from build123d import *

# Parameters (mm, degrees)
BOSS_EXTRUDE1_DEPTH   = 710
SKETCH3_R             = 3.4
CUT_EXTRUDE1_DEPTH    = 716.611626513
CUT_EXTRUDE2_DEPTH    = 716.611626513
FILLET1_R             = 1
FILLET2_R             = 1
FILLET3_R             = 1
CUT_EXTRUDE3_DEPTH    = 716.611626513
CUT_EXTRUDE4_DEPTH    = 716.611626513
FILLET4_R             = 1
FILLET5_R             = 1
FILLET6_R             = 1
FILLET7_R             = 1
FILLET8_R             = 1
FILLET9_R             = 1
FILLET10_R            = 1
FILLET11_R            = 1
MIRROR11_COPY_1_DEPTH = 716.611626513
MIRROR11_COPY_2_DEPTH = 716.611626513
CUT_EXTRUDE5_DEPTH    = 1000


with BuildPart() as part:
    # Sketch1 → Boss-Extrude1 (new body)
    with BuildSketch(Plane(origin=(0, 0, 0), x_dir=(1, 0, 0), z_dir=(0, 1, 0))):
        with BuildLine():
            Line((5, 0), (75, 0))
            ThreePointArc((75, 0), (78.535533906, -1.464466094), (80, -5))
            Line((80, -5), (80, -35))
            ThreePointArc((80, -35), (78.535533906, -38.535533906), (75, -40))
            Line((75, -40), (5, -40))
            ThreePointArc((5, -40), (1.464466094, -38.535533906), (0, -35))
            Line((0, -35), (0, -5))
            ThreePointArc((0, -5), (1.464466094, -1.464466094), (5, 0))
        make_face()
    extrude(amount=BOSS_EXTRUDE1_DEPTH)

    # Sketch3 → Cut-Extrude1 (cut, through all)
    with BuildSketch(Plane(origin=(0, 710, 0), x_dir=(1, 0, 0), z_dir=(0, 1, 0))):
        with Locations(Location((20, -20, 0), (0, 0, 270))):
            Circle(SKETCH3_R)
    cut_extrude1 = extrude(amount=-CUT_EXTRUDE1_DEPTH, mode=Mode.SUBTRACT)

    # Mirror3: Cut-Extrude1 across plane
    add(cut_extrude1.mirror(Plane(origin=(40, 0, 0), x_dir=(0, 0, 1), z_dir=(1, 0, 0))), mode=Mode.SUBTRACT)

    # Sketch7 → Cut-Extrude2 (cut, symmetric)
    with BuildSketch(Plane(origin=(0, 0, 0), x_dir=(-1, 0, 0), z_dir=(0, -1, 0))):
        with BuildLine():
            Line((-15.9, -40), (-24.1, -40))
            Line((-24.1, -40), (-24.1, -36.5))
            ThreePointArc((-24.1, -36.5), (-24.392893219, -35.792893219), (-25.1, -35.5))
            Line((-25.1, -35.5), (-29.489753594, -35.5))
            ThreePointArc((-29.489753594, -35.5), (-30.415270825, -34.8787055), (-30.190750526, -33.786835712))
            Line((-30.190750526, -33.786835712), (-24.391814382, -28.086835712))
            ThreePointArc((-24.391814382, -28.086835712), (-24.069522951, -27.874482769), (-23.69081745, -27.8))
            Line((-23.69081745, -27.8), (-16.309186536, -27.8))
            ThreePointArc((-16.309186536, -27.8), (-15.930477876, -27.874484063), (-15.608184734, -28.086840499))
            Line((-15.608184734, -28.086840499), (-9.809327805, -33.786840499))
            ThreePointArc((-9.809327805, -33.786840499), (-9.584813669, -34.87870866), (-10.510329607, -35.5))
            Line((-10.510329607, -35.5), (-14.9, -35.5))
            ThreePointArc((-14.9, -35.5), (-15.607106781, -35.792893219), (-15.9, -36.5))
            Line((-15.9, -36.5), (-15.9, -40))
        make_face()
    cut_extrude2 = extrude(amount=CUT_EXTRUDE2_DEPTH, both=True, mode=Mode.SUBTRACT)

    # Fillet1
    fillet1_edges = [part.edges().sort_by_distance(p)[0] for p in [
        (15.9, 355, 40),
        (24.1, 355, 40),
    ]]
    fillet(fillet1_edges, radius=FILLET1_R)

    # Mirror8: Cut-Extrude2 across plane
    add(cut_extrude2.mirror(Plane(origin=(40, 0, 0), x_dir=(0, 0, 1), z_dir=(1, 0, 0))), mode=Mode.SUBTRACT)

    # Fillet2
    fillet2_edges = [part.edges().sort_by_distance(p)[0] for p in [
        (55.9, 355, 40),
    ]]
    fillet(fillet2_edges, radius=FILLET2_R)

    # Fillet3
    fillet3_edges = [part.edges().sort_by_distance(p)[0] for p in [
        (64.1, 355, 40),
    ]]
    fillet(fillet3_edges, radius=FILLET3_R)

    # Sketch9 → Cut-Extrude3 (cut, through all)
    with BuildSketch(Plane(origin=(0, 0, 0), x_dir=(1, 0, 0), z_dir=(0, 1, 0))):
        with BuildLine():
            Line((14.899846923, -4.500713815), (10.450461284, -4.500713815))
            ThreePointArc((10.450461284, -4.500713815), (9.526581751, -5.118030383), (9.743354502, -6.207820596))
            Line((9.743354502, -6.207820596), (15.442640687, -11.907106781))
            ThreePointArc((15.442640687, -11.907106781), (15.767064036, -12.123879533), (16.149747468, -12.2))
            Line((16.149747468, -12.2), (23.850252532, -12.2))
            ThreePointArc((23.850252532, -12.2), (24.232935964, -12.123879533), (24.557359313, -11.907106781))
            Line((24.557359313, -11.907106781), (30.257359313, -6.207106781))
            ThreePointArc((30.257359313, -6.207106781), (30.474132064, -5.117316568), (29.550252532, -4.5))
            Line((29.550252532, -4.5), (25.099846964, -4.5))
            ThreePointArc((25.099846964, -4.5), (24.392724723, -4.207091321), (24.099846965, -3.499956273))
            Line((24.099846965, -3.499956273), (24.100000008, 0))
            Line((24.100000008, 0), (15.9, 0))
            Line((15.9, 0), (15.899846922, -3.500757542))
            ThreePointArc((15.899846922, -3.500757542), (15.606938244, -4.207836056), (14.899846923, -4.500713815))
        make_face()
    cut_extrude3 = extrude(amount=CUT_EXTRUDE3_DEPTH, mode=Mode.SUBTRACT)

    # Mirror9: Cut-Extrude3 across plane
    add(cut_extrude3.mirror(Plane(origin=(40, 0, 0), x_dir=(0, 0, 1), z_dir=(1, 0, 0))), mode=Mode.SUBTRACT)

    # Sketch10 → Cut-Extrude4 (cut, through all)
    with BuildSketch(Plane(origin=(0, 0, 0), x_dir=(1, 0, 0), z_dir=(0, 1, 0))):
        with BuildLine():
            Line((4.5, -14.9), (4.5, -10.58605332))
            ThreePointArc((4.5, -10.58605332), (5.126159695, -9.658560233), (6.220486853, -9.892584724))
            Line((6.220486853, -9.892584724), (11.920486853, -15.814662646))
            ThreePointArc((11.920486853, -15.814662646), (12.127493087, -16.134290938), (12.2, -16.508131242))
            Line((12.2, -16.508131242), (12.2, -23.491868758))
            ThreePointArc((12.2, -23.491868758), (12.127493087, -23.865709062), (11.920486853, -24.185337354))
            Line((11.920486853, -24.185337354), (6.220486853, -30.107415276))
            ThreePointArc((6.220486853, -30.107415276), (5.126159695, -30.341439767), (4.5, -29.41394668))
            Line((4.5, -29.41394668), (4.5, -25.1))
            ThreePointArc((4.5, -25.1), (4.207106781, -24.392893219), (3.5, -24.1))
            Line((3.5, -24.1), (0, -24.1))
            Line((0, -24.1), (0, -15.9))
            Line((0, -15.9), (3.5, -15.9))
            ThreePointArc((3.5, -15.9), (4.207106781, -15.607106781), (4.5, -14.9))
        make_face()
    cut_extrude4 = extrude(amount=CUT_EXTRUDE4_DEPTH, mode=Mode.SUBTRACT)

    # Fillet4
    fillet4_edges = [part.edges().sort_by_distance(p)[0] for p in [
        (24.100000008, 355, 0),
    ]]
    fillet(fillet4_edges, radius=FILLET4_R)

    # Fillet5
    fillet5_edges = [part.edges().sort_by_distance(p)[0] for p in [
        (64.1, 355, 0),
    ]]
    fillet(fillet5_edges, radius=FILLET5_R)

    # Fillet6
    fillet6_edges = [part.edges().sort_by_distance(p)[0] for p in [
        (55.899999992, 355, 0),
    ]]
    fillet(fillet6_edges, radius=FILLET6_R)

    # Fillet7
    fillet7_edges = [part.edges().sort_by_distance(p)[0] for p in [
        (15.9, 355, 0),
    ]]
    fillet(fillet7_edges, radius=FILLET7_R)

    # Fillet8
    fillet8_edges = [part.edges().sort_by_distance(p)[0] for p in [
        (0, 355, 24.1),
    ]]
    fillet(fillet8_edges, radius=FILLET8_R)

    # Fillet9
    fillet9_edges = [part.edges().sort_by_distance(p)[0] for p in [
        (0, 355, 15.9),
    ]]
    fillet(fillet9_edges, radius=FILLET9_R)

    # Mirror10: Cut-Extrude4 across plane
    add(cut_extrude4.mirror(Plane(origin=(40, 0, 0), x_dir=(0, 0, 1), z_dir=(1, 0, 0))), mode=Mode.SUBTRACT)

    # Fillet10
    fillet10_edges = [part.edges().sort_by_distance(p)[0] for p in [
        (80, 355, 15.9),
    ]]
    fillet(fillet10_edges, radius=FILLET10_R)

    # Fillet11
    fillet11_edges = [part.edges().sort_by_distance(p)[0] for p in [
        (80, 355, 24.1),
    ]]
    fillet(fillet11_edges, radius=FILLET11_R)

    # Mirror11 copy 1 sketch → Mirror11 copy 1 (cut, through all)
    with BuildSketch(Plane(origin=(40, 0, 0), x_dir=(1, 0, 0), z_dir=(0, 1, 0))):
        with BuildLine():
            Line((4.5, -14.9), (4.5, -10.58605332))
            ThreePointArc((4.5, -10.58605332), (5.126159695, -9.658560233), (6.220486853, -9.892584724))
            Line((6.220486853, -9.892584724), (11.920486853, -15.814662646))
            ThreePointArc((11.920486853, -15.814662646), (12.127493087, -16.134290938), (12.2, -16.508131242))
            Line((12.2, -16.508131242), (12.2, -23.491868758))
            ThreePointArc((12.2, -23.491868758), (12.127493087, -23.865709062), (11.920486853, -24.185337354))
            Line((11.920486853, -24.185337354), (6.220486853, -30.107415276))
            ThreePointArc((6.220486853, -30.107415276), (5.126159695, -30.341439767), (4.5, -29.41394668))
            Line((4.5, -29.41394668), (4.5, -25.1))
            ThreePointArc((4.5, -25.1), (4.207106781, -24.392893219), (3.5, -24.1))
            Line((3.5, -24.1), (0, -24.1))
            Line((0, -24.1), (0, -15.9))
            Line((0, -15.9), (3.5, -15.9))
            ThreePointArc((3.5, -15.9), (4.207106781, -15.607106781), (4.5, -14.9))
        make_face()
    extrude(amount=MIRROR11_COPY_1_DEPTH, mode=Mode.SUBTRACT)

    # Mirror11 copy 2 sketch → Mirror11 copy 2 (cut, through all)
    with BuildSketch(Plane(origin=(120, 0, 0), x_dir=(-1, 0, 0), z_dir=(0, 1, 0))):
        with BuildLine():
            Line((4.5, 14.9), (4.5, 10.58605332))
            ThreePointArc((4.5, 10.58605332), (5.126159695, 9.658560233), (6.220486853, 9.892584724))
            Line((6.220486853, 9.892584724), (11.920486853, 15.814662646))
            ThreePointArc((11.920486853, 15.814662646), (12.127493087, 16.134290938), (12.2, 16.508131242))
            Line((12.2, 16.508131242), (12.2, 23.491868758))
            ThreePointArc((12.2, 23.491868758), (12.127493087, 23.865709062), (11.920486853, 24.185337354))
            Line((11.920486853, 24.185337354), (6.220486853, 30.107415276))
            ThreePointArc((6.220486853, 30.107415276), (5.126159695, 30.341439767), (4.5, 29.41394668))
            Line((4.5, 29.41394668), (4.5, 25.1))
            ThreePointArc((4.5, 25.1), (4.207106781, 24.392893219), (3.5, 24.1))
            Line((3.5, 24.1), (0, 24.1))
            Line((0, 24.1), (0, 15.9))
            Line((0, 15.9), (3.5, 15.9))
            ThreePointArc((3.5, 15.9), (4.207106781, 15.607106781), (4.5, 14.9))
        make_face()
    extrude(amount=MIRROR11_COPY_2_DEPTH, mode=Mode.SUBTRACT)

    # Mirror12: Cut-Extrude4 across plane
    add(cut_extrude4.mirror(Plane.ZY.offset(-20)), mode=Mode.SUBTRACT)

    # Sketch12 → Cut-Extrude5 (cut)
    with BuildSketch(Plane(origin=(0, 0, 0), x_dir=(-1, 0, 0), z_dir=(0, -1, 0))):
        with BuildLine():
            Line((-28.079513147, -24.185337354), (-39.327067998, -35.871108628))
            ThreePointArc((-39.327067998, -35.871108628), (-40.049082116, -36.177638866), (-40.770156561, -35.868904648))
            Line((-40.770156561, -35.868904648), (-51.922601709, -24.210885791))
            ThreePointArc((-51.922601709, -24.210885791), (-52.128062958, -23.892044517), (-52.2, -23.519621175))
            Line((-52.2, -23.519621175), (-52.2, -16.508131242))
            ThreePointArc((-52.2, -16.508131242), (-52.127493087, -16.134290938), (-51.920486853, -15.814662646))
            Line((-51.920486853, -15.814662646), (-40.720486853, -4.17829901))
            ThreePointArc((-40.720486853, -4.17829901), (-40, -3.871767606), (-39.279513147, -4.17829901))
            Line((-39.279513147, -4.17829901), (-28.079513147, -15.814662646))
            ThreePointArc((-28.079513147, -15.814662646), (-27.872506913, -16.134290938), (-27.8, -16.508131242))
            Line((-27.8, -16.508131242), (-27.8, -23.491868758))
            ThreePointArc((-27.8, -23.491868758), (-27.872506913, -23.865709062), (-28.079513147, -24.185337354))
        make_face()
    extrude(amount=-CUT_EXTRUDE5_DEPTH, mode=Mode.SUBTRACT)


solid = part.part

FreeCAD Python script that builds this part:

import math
import FreeCAD as App
import Part
import Sketcher
from FreeCAD import Vector


def edges_at(feature, points):
    """Names of the edges that pass closest to the given points."""
    edges = feature.Shape.Edges
    near = lambda p: min(range(len(edges)), key=lambda i: edges[i].distToShape(Part.Vertex(*p))[0])
    return sorted({f"Edge{near(p) + 1}" for p in points})

doc = App.newDocument("Part")
body = doc.addObject("PartDesign::Body", "Body")

sketch1 = doc.addObject("Sketcher::SketchObject", "Sketch")
body.addObject(sketch1)
sketch1.AttachmentSupport = (doc.XZ_Plane, [""])
sketch1.MapMode = "FlatFace"
sketch1.addGeometry([
    Part.LineSegment(Vector(75, 0, 0), Vector(5, 0, 0)),
    Part.ArcOfCircle(Part.Circle(Vector(5, 5, 0), Vector(0, 0, 1), 5), math.radians(180), math.radians(270)),
    Part.LineSegment(Vector(0, 5, 0), Vector(0, 35, 0)),
    Part.ArcOfCircle(Part.Circle(Vector(5, 35, 0), Vector(0, 0, 1), 5), math.radians(90), math.radians(180)),
    Part.LineSegment(Vector(5, 40, 0), Vector(75, 40, 0)),
    Part.ArcOfCircle(Part.Circle(Vector(75, 35, 0), Vector(0, 0, 1), 5), math.radians(0), math.radians(90)),
    Part.LineSegment(Vector(80, 35, 0), Vector(80, 5, 0)),
    Part.ArcOfCircle(Part.Circle(Vector(75, 5, 0), Vector(0, 0, 1), 5), math.radians(-90), math.radians(0)),
], False)
sketch1.addConstraint([
    Sketcher.Constraint("Tangent", 0, 2, 1, 2),
    Sketcher.Constraint("Tangent", 1, 1, 2, 1),
    Sketcher.Constraint("Tangent", 2, 2, 3, 2),
    Sketcher.Constraint("Tangent", 3, 1, 4, 1),
    Sketcher.Constraint("Tangent", 4, 2, 5, 2),
    Sketcher.Constraint("Tangent", 5, 1, 6, 1),
    Sketcher.Constraint("Tangent", 6, 2, 7, 2),
    Sketcher.Constraint("Tangent", 7, 1, 0, 1),
    Sketcher.Constraint("Horizontal", 0),
    Sketcher.Constraint("Vertical", 2),
    Sketcher.Constraint("Horizontal", 4),
    Sketcher.Constraint("Vertical", 6),
    Sketcher.Constraint("Equal", 1, 3),
    Sketcher.Constraint("Equal", 3, 5),
    Sketcher.Constraint("Equal", 5, 7),
    Sketcher.Constraint("PointOnObject", 0, 2, -1),
    Sketcher.Constraint("PointOnObject", 1, 1, -2),
    Sketcher.Constraint("Radius", 1, 5.0),
    Sketcher.Constraint("DistanceX", 0, 2, 0, 1, 70.0),
    Sketcher.Constraint("DistanceY", 2, 1, 2, 2, 30.0),
])
pad1 = doc.addObject("PartDesign::Pad", "Pad")
body.addObject(pad1)
pad1.Profile = sketch1
pad1.Length = 710
pad1.Reversed = True

sketch2 = doc.addObject("Sketcher::SketchObject", "Sketch001")
body.addObject(sketch2)
sketch2.AttachmentSupport = (doc.XZ_Plane, [""])
sketch2.MapMode = "FlatFace"
sketch2.AttachmentOffset = App.Placement(Vector(0, 0, -710), App.Rotation())
sketch2.addGeometry(Part.Circle(Vector(20, 20, 0), Vector(0, 0, 1), 3.4), False)
sketch2.addConstraint([
    Sketcher.Constraint("Diameter", 0, 6.8),
    Sketcher.Constraint("DistanceX", -1, 1, 0, 3, 20.0),
    Sketcher.Constraint("DistanceY", -1, 1, 0, 3, 20.0),
])
pocket1 = doc.addObject("PartDesign::Pocket", "Pocket")
body.addObject(pocket1)
pocket1.Profile = sketch2
pocket1.Type = "ThroughAll"
pocket1.Reversed = True
doc.recompute()

datumplane = doc.addObject("PartDesign::Plane", "DatumPlane")
body.addObject(datumplane)
datumplane.AttachmentSupport = (doc.YZ_Plane, [""])
datumplane.MapMode = "FlatFace"
datumplane.AttachmentOffset = App.Placement(Vector(0, 0, 40), App.Rotation())
mirrored = doc.addObject("PartDesign::Mirrored", "Mirrored")
body.addObject(mirrored)
mirrored.Originals = [pocket1]
mirrored.MirrorPlane = (datumplane, [""])
body.Tip = mirrored

sketch3 = doc.addObject("Sketcher::SketchObject", "Sketch002")
body.addObject(sketch3)
sketch3.AttachmentSupport = (doc.XZ_Plane, [""])
sketch3.MapMode = "FlatFace"
sketch3.addGeometry([
    Part.LineSegment(Vector(24.1, 40, 0), Vector(15.9, 40, 0)),
    Part.LineSegment(Vector(15.9, 40, 0), Vector(15.9, 36.5, 0)),
    Part.ArcOfCircle(Part.Circle(Vector(14.9, 36.5, 0), Vector(0, 0, 1), 1), math.radians(-90), math.radians(0)),
    Part.LineSegment(Vector(14.9, 35.5, 0), Vector(10.5, 35.5, 0)),
    Part.ArcOfCircle(Part.Circle(Vector(10.5, 34.5, 0), Vector(0, 0, 1), 1), math.radians(90), math.radians(225)),
    Part.LineSegment(Vector(9.8, 33.8, 0), Vector(15.6, 28.1, 0)),
    Part.ArcOfCircle(Part.Circle(Vector(16.3, 28.8, 0), Vector(0, 0, 1), 1), math.radians(-135), math.radians(-90)),
    Part.LineSegment(Vector(16.3, 27.8, 0), Vector(23.7, 27.8, 0)),
    Part.ArcOfCircle(Part.Circle(Vector(23.7, 28.8, 0), Vector(0, 0, 1), 1), math.radians(-90), math.radians(-45)),
    Part.LineSegment(Vector(24.4, 28.1, 0), Vector(30.2, 33.8, 0)),
    Part.ArcOfCircle(Part.Circle(Vector(29.5, 34.5, 0), Vector(0, 0, 1), 1), math.radians(-45), math.radians(90)),
    Part.LineSegment(Vector(29.5, 35.5, 0), Vector(25.1, 35.5, 0)),
    Part.ArcOfCircle(Part.Circle(Vector(25.1, 36.5, 0), Vector(0, 0, 1), 1), math.radians(-180), math.radians(-90)),
    Part.LineSegment(Vector(24.1, 36.5, 0), Vector(24.1, 40, 0)),
], False)
sketch3.addConstraint([
    Sketcher.Constraint("Coincident", 0, 2, 1, 1),
    Sketcher.Constraint("Tangent", 1, 2, 2, 2),
    Sketcher.Constraint("Tangent", 2, 1, 3, 1),
    Sketcher.Constraint("Tangent", 3, 2, 4, 1),
    Sketcher.Constraint("Tangent", 4, 2, 5, 1),
    Sketcher.Constraint("Tangent", 5, 2, 6, 1),
    Sketcher.Constraint("Tangent", 6, 2, 7, 1),
    Sketcher.Constraint("Tangent", 7, 2, 8, 1),
    Sketcher.Constraint("Tangent", 8, 2, 9, 1),
    Sketcher.Constraint("Tangent", 9, 2, 10, 1),
    Sketcher.Constraint("Tangent", 10, 2, 11, 1),
    Sketcher.Constraint("Tangent", 11, 2, 12, 2),
    Sketcher.Constraint("Tangent", 12, 1, 13, 1),
    Sketcher.Constraint("Coincident", 13, 2, 0, 1),
    Sketcher.Constraint("Horizontal", 0),
    Sketcher.Constraint("Vertical", 1),
    Sketcher.Constraint("Horizontal", 3),
    Sketcher.Constraint("Horizontal", 7),
    Sketcher.Constraint("Horizontal", 11),
    Sketcher.Constraint("Vertical", 13),
    Sketcher.Constraint("Equal", 2, 4),
    Sketcher.Constraint("Equal", 4, 6),
    Sketcher.Constraint("Equal", 6, 8),
    Sketcher.Constraint("Equal", 8, 10),
    Sketcher.Constraint("Equal", 10, 12),
    Sketcher.Constraint("Horizontal", 4, 3, 10, 3),
    Sketcher.Constraint("Radius", 2, 1.0),
    Sketcher.Constraint("DistanceX", 0, 2, 0, 1, 8.2),
    Sketcher.Constraint("DistanceY", 1, 2, 1, 1, 3.5),
    Sketcher.Constraint("DistanceY", -1, 1, 0, 2, 40.0),
    Sketcher.Constraint("DistanceX", -1, 1, 2, 3, 14.9),
    Sketcher.Constraint("DistanceY", -1, 1, 6, 3, 28.8),
    Sketcher.Constraint("DistanceX", 4, 2, 4, 3, 0.701002),
    Sketcher.Constraint("DistanceX", 3, 2, 3, 1, 4.38967),
    Sketcher.Constraint("DistanceX", 7, 1, 7, 2, 7.381631),
    Sketcher.Constraint("DistanceX", 11, 2, 11, 1, 4.389754),
])
pocket2 = doc.addObject("PartDesign::Pocket", "Pocket001")
body.addObject(pocket2)
pocket2.Profile = sketch3
pocket2.Length = 1433.223253
pocket2.Midplane = True
doc.recompute()

fillet = doc.addObject("PartDesign::Fillet", "Fillet")
body.addObject(fillet)
fillet.Base = (pocket2, edges_at(pocket2, [(15.9, 355, 40), (24.1, 355, 40)]))
fillet.Radius = 1
doc.recompute()

datumplane2 = doc.addObject("PartDesign::Plane", "DatumPlane001")
body.addObject(datumplane2)
datumplane2.AttachmentSupport = (doc.YZ_Plane, [""])
datumplane2.MapMode = "FlatFace"
datumplane2.AttachmentOffset = App.Placement(Vector(0, 0, 40), App.Rotation())
mirrored2 = doc.addObject("PartDesign::Mirrored", "Mirrored001")
body.addObject(mirrored2)
mirrored2.Originals = [pocket2]
mirrored2.MirrorPlane = (datumplane2, [""])
body.Tip = mirrored2
doc.recompute()

fillet2 = doc.addObject("PartDesign::Fillet", "Fillet001")
body.addObject(fillet2)
fillet2.Base = (mirrored2, edges_at(mirrored2, [(55.9, 355, 40)]))
fillet2.Radius = 1
doc.recompute()

fillet3 = doc.addObject("PartDesign::Fillet", "Fillet002")
body.addObject(fillet3)
fillet3.Base = (fillet2, edges_at(fillet2, [(64.1, 355, 40)]))
fillet3.Radius = 1

sketch4 = doc.addObject("Sketcher::SketchObject", "Sketch003")
body.addObject(sketch4)
sketch4.AttachmentSupport = (doc.XZ_Plane, [""])
sketch4.MapMode = "FlatFace"
sketch4.addGeometry([
    Part.LineSegment(Vector(14.9, 4.5, 0), Vector(10.5, 4.5, 0)),
    Part.ArcOfCircle(Part.Circle(Vector(10.5, 5.5, 0), Vector(0, 0, 1), 1), math.radians(135), math.radians(270)),
    Part.LineSegment(Vector(9.7, 6.2, 0), Vector(15.4, 11.9, 0)),
    Part.ArcOfCircle(Part.Circle(Vector(16.1, 11.2, 0), Vector(0, 0, 1), 1), math.radians(90), math.radians(135)),
    Part.LineSegment(Vector(16.1, 12.2, 0), Vector(23.9, 12.2, 0)),
    Part.ArcOfCircle(Part.Circle(Vector(23.9, 11.2, 0), Vector(0, 0, 1), 1), math.radians(45), math.radians(90)),
    Part.LineSegment(Vector(24.6, 11.9, 0), Vector(30.3, 6.2, 0)),
    Part.ArcOfCircle(Part.Circle(Vector(29.6, 5.5, 0), Vector(0, 0, 1), 1), math.radians(-90), math.radians(45)),
    Part.LineSegment(Vector(29.6, 4.5, 0), Vector(25.1, 4.5, 0)),
    Part.ArcOfCircle(Part.Circle(Vector(25.1, 3.5, 0), Vector(0, 0, 1), 1), math.radians(90), math.radians(180)),
    Part.LineSegment(Vector(24.1, 3.5, 0), Vector(24.1, 0, 0)),
    Part.LineSegment(Vector(24.1, 0, 0), Vector(15.9, 0, 0)),
    Part.LineSegment(Vector(15.9, 0, 0), Vector(15.9, 3.5, 0)),
    Part.ArcOfCircle(Part.Circle(Vector(14.9, 3.5, 0), Vector(0, 0, 1), 1), math.radians(0), math.radians(90)),
], False)
sketch4.addConstraint([
    Sketcher.Constraint("Tangent", 0, 2, 1, 2),
    Sketcher.Constraint("Tangent", 1, 1, 2, 1),
    Sketcher.Constraint("Tangent", 2, 2, 3, 2),
    Sketcher.Constraint("Tangent", 3, 1, 4, 1),
    Sketcher.Constraint("Tangent", 4, 2, 5, 2),
    Sketcher.Constraint("Tangent", 5, 1, 6, 1),
    Sketcher.Constraint("Tangent", 6, 2, 7, 2),
    Sketcher.Constraint("Tangent", 7, 1, 8, 1),
    Sketcher.Constraint("Tangent", 8, 2, 9, 1),
    Sketcher.Constraint("Tangent", 9, 2, 10, 1),
    Sketcher.Constraint("Coincident", 10, 2, 11, 1),
    Sketcher.Constraint("Coincident", 11, 2, 12, 1),
    Sketcher.Constraint("Tangent", 12, 2, 13, 1),
    Sketcher.Constraint("Tangent", 13, 2, 0, 1),
    Sketcher.Constraint("Horizontal", 0),
    Sketcher.Constraint("Horizontal", 4),
    Sketcher.Constraint("Horizontal", 8),
    Sketcher.Constraint("Horizontal", 11),
    Sketcher.Constraint("Equal", 1, 3),
    Sketcher.Constraint("Equal", 3, 5),
    Sketcher.Constraint("Equal", 5, 7),
    Sketcher.Constraint("Equal", 7, 9),
    Sketcher.Constraint("Equal", 9, 13),
    Sketcher.Constraint("PointOnObject", 10, 2, -1),
    Sketcher.Constraint("Perpendicular", 2, 6),
    Sketcher.Constraint("Parallel", 10, 12),
    Sketcher.Constraint("Horizontal", 2, 2, 5, 1),
    Sketcher.Constraint("Radius", 1, 1.0),
    Sketcher.Constraint("DistanceX", 11, 2, 11, 1, 8.2),
    Sketcher.Constraint("DistanceY", -1, 1, 3, 3, 11.2),
    Sketcher.Constraint("DistanceY", -1, 1, 7, 3, 5.5),
    Sketcher.Constraint("DistanceX", -1, 1, 10, 2, 24.1),
    Sketcher.Constraint("DistanceX", 3, 3, 9, 3, 8.950099),
    Sketcher.Constraint("DistanceX", 1, 1, 5, 3, 14.106898),
    Sketcher.Constraint("DistanceX", 0, 2, 0, 1, 4.449386),
    Sketcher.Constraint("DistanceX", -1, 1, 1, 3, 10.450461),
])
pocket3 = doc.addObject("PartDesign::Pocket", "Pocket002")
body.addObject(pocket3)
pocket3.Profile = sketch4
pocket3.Type = "ThroughAll"
doc.recompute()

datumplane3 = doc.addObject("PartDesign::Plane", "DatumPlane002")
body.addObject(datumplane3)
datumplane3.AttachmentSupport = (doc.YZ_Plane, [""])
datumplane3.MapMode = "FlatFace"
datumplane3.AttachmentOffset = App.Placement(Vector(0, 0, 40), App.Rotation())
mirrored3 = doc.addObject("PartDesign::Mirrored", "Mirrored002")
body.addObject(mirrored3)
mirrored3.Originals = [pocket3]
mirrored3.MirrorPlane = (datumplane3, [""])
body.Tip = mirrored3

sketch5 = doc.addObject("Sketcher::SketchObject", "Sketch004")
body.addObject(sketch5)
sketch5.AttachmentSupport = (doc.XZ_Plane, [""])
sketch5.MapMode = "FlatFace"
sketch5.addGeometry([
    Part.LineSegment(Vector(4.5, 10.6, 0), Vector(4.5, 14.9, 0)),
    Part.ArcOfCircle(Part.Circle(Vector(3.5, 14.9, 0), Vector(0, 0, 1), 1), math.radians(0), math.radians(90)),
    Part.LineSegment(Vector(3.5, 15.9, 0), Vector(0, 15.9, 0)),
    Part.LineSegment(Vector(0, 15.9, 0), Vector(0, 24.1, 0)),
    Part.LineSegment(Vector(0, 24.1, 0), Vector(3.5, 24.1, 0)),
    Part.ArcOfCircle(Part.Circle(Vector(3.5, 25.1, 0), Vector(0, 0, 1), 1), math.radians(-90), math.radians(0)),
    Part.LineSegment(Vector(4.5, 25.1, 0), Vector(4.5, 29.4, 0)),
    Part.ArcOfCircle(Part.Circle(Vector(5.5, 29.4, 0), Vector(0, 0, 1), 1), math.radians(44), math.radians(180)),
    Part.LineSegment(Vector(6.2, 30.1, 0), Vector(11.9, 24.2, 0)),
    Part.ArcOfCircle(Part.Circle(Vector(11.2, 23.5, 0), Vector(0, 0, 1), 1), math.radians(0), math.radians(44)),
    Part.LineSegment(Vector(12.2, 23.5, 0), Vector(12.2, 16.5, 0)),
    Part.ArcOfCircle(Part.Circle(Vector(11.2, 16.5, 0), Vector(0, 0, 1), 1), math.radians(-44), math.radians(0)),
    Part.LineSegment(Vector(11.9, 15.8, 0), Vector(6.2, 9.9, 0)),
    Part.ArcOfCircle(Part.Circle(Vector(5.5, 10.6, 0), Vector(0, 0, 1), 1), math.radians(180), math.radians(316)),
], False)
sketch5.addConstraint([
    Sketcher.Constraint("Tangent", 0, 2, 1, 1),
    Sketcher.Constraint("Tangent", 1, 2, 2, 1),
    Sketcher.Constraint("Coincident", 2, 2, 3, 1),
    Sketcher.Constraint("Coincident", 3, 2, 4, 1),
    Sketcher.Constraint("Tangent", 4, 2, 5, 1),
    Sketcher.Constraint("Tangent", 5, 2, 6, 1),
    Sketcher.Constraint("Tangent", 6, 2, 7, 2),
    Sketcher.Constraint("Tangent", 7, 1, 8, 1),
    Sketcher.Constraint("Tangent", 8, 2, 9, 2),
    Sketcher.Constraint("Tangent", 9, 1, 10, 1),
    Sketcher.Constraint("Tangent", 10, 2, 11, 2),
    Sketcher.Constraint("Tangent", 11, 1, 12, 1),
    Sketcher.Constraint("Tangent", 12, 2, 13, 2),
    Sketcher.Constraint("Tangent", 13, 1, 0, 1),
    Sketcher.Constraint("Vertical", 0),
    Sketcher.Constraint("Horizontal", 2),
    Sketcher.Constraint("Vertical", 3),
    Sketcher.Constraint("Horizontal", 4),
    Sketcher.Constraint("Vertical", 6),
    Sketcher.Constraint("Vertical", 10),
    Sketcher.Constraint("Equal", 1, 5),
    Sketcher.Constraint("Equal", 5, 7),
    Sketcher.Constraint("Equal", 7, 9),
    Sketcher.Constraint("Equal", 9, 11),
    Sketcher.Constraint("Equal", 11, 13),
    Sketcher.Constraint("PointOnObject", 2, 2, -2),
    Sketcher.Constraint("Vertical", 1, 3, 5, 3),
    Sketcher.Constraint("Vertical", 8, 2, 11, 1),
    Sketcher.Constraint("Equal", 0, 6),
    Sketcher.Constraint("Radius", 1, 1.0),
    Sketcher.Constraint("DistanceX", 2, 2, 2, 1, 3.5),
    Sketcher.Constraint("DistanceY", 3, 1, 3, 2, 8.2),
    Sketcher.Constraint("DistanceY", -1, 1, 1, 3, 14.9),
    Sketcher.Constraint("DistanceX", -1, 1, 9, 3, 11.2),
    Sketcher.Constraint("Distance", 8, 8.21955),
    Sketcher.Constraint("DistanceY", 0, 1, 0, 2, 4.313947),
])
pocket4 = doc.addObject("PartDesign::Pocket", "Pocket003")
body.addObject(pocket4)
pocket4.Profile = sketch5
pocket4.Type = "ThroughAll"
doc.recompute()

fillet4 = doc.addObject("PartDesign::Fillet", "Fillet003")
body.addObject(fillet4)
fillet4.Base = (pocket4, edges_at(pocket4, [(24.1, 355, 0)]))
fillet4.Radius = 1
doc.recompute()

fillet5 = doc.addObject("PartDesign::Fillet", "Fillet004")
body.addObject(fillet5)
fillet5.Base = (fillet4, edges_at(fillet4, [(64.1, 355, 0)]))
fillet5.Radius = 1
doc.recompute()

fillet6 = doc.addObject("PartDesign::Fillet", "Fillet005")
body.addObject(fillet6)
fillet6.Base = (fillet5, edges_at(fillet5, [(55.9, 355, 0)]))
fillet6.Radius = 1
doc.recompute()

fillet7 = doc.addObject("PartDesign::Fillet", "Fillet006")
body.addObject(fillet7)
fillet7.Base = (fillet6, edges_at(fillet6, [(15.9, 355, 0)]))
fillet7.Radius = 1
doc.recompute()

fillet8 = doc.addObject("PartDesign::Fillet", "Fillet007")
body.addObject(fillet8)
fillet8.Base = (fillet7, edges_at(fillet7, [(0, 355, 24.1)]))
fillet8.Radius = 1
doc.recompute()

fillet9 = doc.addObject("PartDesign::Fillet", "Fillet008")
body.addObject(fillet9)
fillet9.Base = (fillet8, edges_at(fillet8, [(0, 355, 15.9)]))
fillet9.Radius = 1
doc.recompute()

datumplane4 = doc.addObject("PartDesign::Plane", "DatumPlane003")
body.addObject(datumplane4)
datumplane4.AttachmentSupport = (doc.YZ_Plane, [""])
datumplane4.MapMode = "FlatFace"
datumplane4.AttachmentOffset = App.Placement(Vector(0, 0, 40), App.Rotation())
mirrored4 = doc.addObject("PartDesign::Mirrored", "Mirrored003")
body.addObject(mirrored4)
mirrored4.Originals = [pocket4]
mirrored4.MirrorPlane = (datumplane4, [""])
body.Tip = mirrored4
doc.recompute()

fillet10 = doc.addObject("PartDesign::Fillet", "Fillet009")
body.addObject(fillet10)
fillet10.Base = (mirrored4, edges_at(mirrored4, [(80, 355, 15.9)]))
fillet10.Radius = 1
doc.recompute()

fillet11 = doc.addObject("PartDesign::Fillet", "Fillet010")
body.addObject(fillet11)
fillet11.Base = (fillet10, edges_at(fillet10, [(80, 355, 24.1)]))
fillet11.Radius = 1

sketch6 = doc.addObject("Sketcher::SketchObject", "Sketch005")
body.addObject(sketch6)
sketch6.AttachmentSupport = (doc.XZ_Plane, [""])
sketch6.MapMode = "FlatFace"
sketch6.addGeometry([
    Part.LineSegment(Vector(44.5, 10.6, 0), Vector(44.5, 14.9, 0)),
    Part.ArcOfCircle(Part.Circle(Vector(43.5, 14.9, 0), Vector(0, 0, 1), 1), math.radians(0), math.radians(90)),
    Part.LineSegment(Vector(43.5, 15.9, 0), Vector(40, 15.9, 0)),
    Part.LineSegment(Vector(40, 15.9, 0), Vector(40, 24.1, 0)),
    Part.LineSegment(Vector(40, 24.1, 0), Vector(43.5, 24.1, 0)),
    Part.ArcOfCircle(Part.Circle(Vector(43.5, 25.1, 0), Vector(0, 0, 1), 1), math.radians(-90), math.radians(0)),
    Part.LineSegment(Vector(44.5, 25.1, 0), Vector(44.5, 29.4, 0)),
    Part.ArcOfCircle(Part.Circle(Vector(45.5, 29.4, 0), Vector(0, 0, 1), 1), math.radians(44), math.radians(180)),
    Part.LineSegment(Vector(46.2, 30.1, 0), Vector(51.9, 24.2, 0)),
    Part.ArcOfCircle(Part.Circle(Vector(51.2, 23.5, 0), Vector(0, 0, 1), 1), math.radians(0), math.radians(44)),
    Part.LineSegment(Vector(52.2, 23.5, 0), Vector(52.2, 16.5, 0)),
    Part.ArcOfCircle(Part.Circle(Vector(51.2, 16.5, 0), Vector(0, 0, 1), 1), math.radians(-44), math.radians(0)),
    Part.LineSegment(Vector(51.9, 15.8, 0), Vector(46.2, 9.9, 0)),
    Part.ArcOfCircle(Part.Circle(Vector(45.5, 10.6, 0), Vector(0, 0, 1), 1), math.radians(180), math.radians(316)),
], False)
sketch6.addConstraint([
    Sketcher.Constraint("Tangent", 0, 2, 1, 1),
    Sketcher.Constraint("Tangent", 1, 2, 2, 1),
    Sketcher.Constraint("Coincident", 2, 2, 3, 1),
    Sketcher.Constraint("Coincident", 3, 2, 4, 1),
    Sketcher.Constraint("Tangent", 4, 2, 5, 1),
    Sketcher.Constraint("Tangent", 5, 2, 6, 1),
    Sketcher.Constraint("Tangent", 6, 2, 7, 2),
    Sketcher.Constraint("Tangent", 7, 1, 8, 1),
    Sketcher.Constraint("Tangent", 8, 2, 9, 2),
    Sketcher.Constraint("Tangent", 9, 1, 10, 1),
    Sketcher.Constraint("Tangent", 10, 2, 11, 2),
    Sketcher.Constraint("Tangent", 11, 1, 12, 1),
    Sketcher.Constraint("Tangent", 12, 2, 13, 2),
    Sketcher.Constraint("Tangent", 13, 1, 0, 1),
    Sketcher.Constraint("Vertical", 0),
    Sketcher.Constraint("Horizontal", 2),
    Sketcher.Constraint("Vertical", 3),
    Sketcher.Constraint("Horizontal", 4),
    Sketcher.Constraint("Vertical", 6),
    Sketcher.Constraint("Vertical", 10),
    Sketcher.Constraint("Equal", 1, 5),
    Sketcher.Constraint("Equal", 5, 7),
    Sketcher.Constraint("Equal", 7, 9),
    Sketcher.Constraint("Equal", 9, 11),
    Sketcher.Constraint("Equal", 11, 13),
    Sketcher.Constraint("Vertical", 1, 3, 5, 3),
    Sketcher.Constraint("Vertical", 8, 2, 11, 1),
    Sketcher.Constraint("Equal", 0, 6),
    Sketcher.Constraint("Radius", 1, 1.0),
    Sketcher.Constraint("DistanceX", 2, 2, 2, 1, 3.5),
    Sketcher.Constraint("DistanceY", 3, 1, 3, 2, 8.2),
    Sketcher.Constraint("DistanceX", -1, 1, 2, 2, 40.0),
    Sketcher.Constraint("DistanceY", -1, 1, 1, 3, 14.9),
    Sketcher.Constraint("DistanceX", -1, 1, 9, 3, 51.2),
    Sketcher.Constraint("Distance", 8, 8.21955),
    Sketcher.Constraint("DistanceY", 0, 1, 0, 2, 4.313947),
])
pocket5 = doc.addObject("PartDesign::Pocket", "Pocket004")
body.addObject(pocket5)
pocket5.Profile = sketch6
pocket5.Type = "ThroughAll"

sketch7 = doc.addObject("Sketcher::SketchObject", "Sketch006")
body.addObject(sketch7)
sketch7.AttachmentSupport = (doc.XZ_Plane, [""])
sketch7.MapMode = "FlatFace"
sketch7.addGeometry([
    Part.LineSegment(Vector(115.5, 14.9, 0), Vector(115.5, 10.6, 0)),
    Part.ArcOfCircle(Part.Circle(Vector(114.5, 10.6, 0), Vector(0, 0, 1), 1), math.radians(-136), math.radians(0)),
    Part.LineSegment(Vector(113.8, 9.9, 0), Vector(108.1, 15.8, 0)),
    Part.ArcOfCircle(Part.Circle(Vector(108.8, 16.5, 0), Vector(0, 0, 1), 1), math.radians(-180), math.radians(-136)),
    Part.LineSegment(Vector(107.8, 16.5, 0), Vector(107.8, 23.5, 0)),
    Part.ArcOfCircle(Part.Circle(Vector(108.8, 23.5, 0), Vector(0, 0, 1), 1), math.radians(136), math.radians(180)),
    Part.LineSegment(Vector(108.1, 24.2, 0), Vector(113.8, 30.1, 0)),
    Part.ArcOfCircle(Part.Circle(Vector(114.5, 29.4, 0), Vector(0, 0, 1), 1), math.radians(0), math.radians(136)),
    Part.LineSegment(Vector(115.5, 29.4, 0), Vector(115.5, 25.1, 0)),
    Part.ArcOfCircle(Part.Circle(Vector(116.5, 25.1, 0), Vector(0, 0, 1), 1), math.radians(-180), math.radians(-90)),
    Part.LineSegment(Vector(116.5, 24.1, 0), Vector(120, 24.1, 0)),
    Part.LineSegment(Vector(120, 24.1, 0), Vector(120, 15.9, 0)),
    Part.LineSegment(Vector(120, 15.9, 0), Vector(116.5, 15.9, 0)),
    Part.ArcOfCircle(Part.Circle(Vector(116.5, 14.9, 0), Vector(0, 0, 1), 1), math.radians(90), math.radians(180)),
], False)
sketch7.addConstraint([
    Sketcher.Constraint("Tangent", 0, 2, 1, 2),
    Sketcher.Constraint("Tangent", 1, 1, 2, 1),
    Sketcher.Constraint("Tangent", 2, 2, 3, 2),
    Sketcher.Constraint("Tangent", 3, 1, 4, 1),
    Sketcher.Constraint("Tangent", 4, 2, 5, 2),
    Sketcher.Constraint("Tangent", 5, 1, 6, 1),
    Sketcher.Constraint("Tangent", 6, 2, 7, 2),
    Sketcher.Constraint("Tangent", 7, 1, 8, 1),
    Sketcher.Constraint("Tangent", 8, 2, 9, 1),
    Sketcher.Constraint("Tangent", 9, 2, 10, 1),
    Sketcher.Constraint("Coincident", 10, 2, 11, 1),
    Sketcher.Constraint("Coincident", 11, 2, 12, 1),
    Sketcher.Constraint("Tangent", 12, 2, 13, 1),
    Sketcher.Constraint("Tangent", 13, 2, 0, 1),
    Sketcher.Constraint("Vertical", 0),
    Sketcher.Constraint("Vertical", 4),
    Sketcher.Constraint("Vertical", 8),
    Sketcher.Constraint("Horizontal", 10),
    Sketcher.Constraint("Vertical", 11),
    Sketcher.Constraint("Horizontal", 12),
    Sketcher.Constraint("Equal", 1, 3),
    Sketcher.Constraint("Equal", 3, 5),
    Sketcher.Constraint("Equal", 5, 7),
    Sketcher.Constraint("Equal", 7, 9),
    Sketcher.Constraint("Equal", 9, 13),
    Sketcher.Constraint("Vertical", 1, 3, 7, 3),
    Sketcher.Constraint("Vertical", 2, 2, 5, 1),
    Sketcher.Constraint("Equal", 0, 8),
    Sketcher.Constraint("Radius", 1, 1.0),
    Sketcher.Constraint("DistanceX", 10, 1, 10, 2, 3.5),
    Sketcher.Constraint("DistanceY", 11, 2, 11, 1, 8.2),
    Sketcher.Constraint("DistanceX", -1, 1, 10, 2, 120.0),
    Sketcher.Constraint("DistanceX", -1, 1, 3, 3, 108.8),
    Sketcher.Constraint("DistanceY", -1, 1, 9, 3, 25.1),
    Sketcher.Constraint("Distance", 2, 8.21955),
    Sketcher.Constraint("DistanceY", 0, 2, 0, 1, 4.313947),
])
pocket6 = doc.addObject("PartDesign::Pocket", "Pocket005")
body.addObject(pocket6)
pocket6.Profile = sketch7
pocket6.Type = "ThroughAll"
doc.recompute()

datumplane5 = doc.addObject("PartDesign::Plane", "DatumPlane004")
body.addObject(datumplane5)
datumplane5.AttachmentSupport = (doc.YZ_Plane, [""])
datumplane5.MapMode = "FlatFace"
datumplane5.AttachmentOffset = App.Placement(Vector(0, 0, 20), App.Rotation())
mirrored5 = doc.addObject("PartDesign::Mirrored", "Mirrored004")
body.addObject(mirrored5)
mirrored5.Originals = [pocket4]
mirrored5.MirrorPlane = (datumplane5, [""])
body.Tip = mirrored5

sketch8 = doc.addObject("Sketcher::SketchObject", "Sketch007")
body.addObject(sketch8)
sketch8.AttachmentSupport = (doc.XZ_Plane, [""])
sketch8.MapMode = "FlatFace"
sketch8.addGeometry([
    Part.LineSegment(Vector(39.3, 35.9, 0), Vector(28.1, 24.2, 0)),
    Part.ArcOfCircle(Part.Circle(Vector(28.8, 23.5, 0), Vector(0, 0, 1), 1), math.radians(136), math.radians(180)),
    Part.LineSegment(Vector(27.8, 23.5, 0), Vector(27.8, 16.5, 0)),
    Part.ArcOfCircle(Part.Circle(Vector(28.8, 16.5, 0), Vector(0, 0, 1), 1), math.radians(-180), math.radians(-136)),
    Part.LineSegment(Vector(28.1, 15.8, 0), Vector(39.3, 4.2, 0)),
    Part.ArcOfCircle(Part.Circle(Vector(40, 4.9, 0), Vector(0, 0, 1), 1), math.radians(-136), math.radians(-44)),
    Part.LineSegment(Vector(40.7, 4.2, 0), Vector(51.9, 15.8, 0)),
    Part.ArcOfCircle(Part.Circle(Vector(51.2, 16.5, 0), Vector(0, 0, 1), 1), math.radians(-44), math.radians(0)),
    Part.LineSegment(Vector(52.2, 16.5, 0), Vector(52.2, 23.5, 0)),
    Part.ArcOfCircle(Part.Circle(Vector(51.2, 23.5, 0), Vector(0, 0, 1), 1), math.radians(0), math.radians(44)),
    Part.LineSegment(Vector(51.9, 24.2, 0), Vector(40.8, 35.9, 0)),
    Part.ArcOfCircle(Part.Circle(Vector(40, 35.2, 0), Vector(0, 0, 1), 1), math.radians(44), math.radians(136)),
], False)
sketch8.addConstraint([
    Sketcher.Constraint("Tangent", 0, 2, 1, 1),
    Sketcher.Constraint("Tangent", 1, 2, 2, 1),
    Sketcher.Constraint("Tangent", 2, 2, 3, 1),
    Sketcher.Constraint("Tangent", 3, 2, 4, 1),
    Sketcher.Constraint("Tangent", 4, 2, 5, 1),
    Sketcher.Constraint("Tangent", 5, 2, 6, 1),
    Sketcher.Constraint("Tangent", 6, 2, 7, 1),
    Sketcher.Constraint("Tangent", 7, 2, 8, 1),
    Sketcher.Constraint("Tangent", 8, 2, 9, 1),
    Sketcher.Constraint("Tangent", 9, 2, 10, 1),
    Sketcher.Constraint("Tangent", 10, 2, 11, 1),
    Sketcher.Constraint("Tangent", 11, 2, 0, 1),
    Sketcher.Constraint("Vertical", 2),
    Sketcher.Constraint("Vertical", 8),
    Sketcher.Constraint("Equal", 1, 3),
    Sketcher.Constraint("Equal", 3, 5),
    Sketcher.Constraint("Equal", 5, 7),
    Sketcher.Constraint("Equal", 7, 9),
    Sketcher.Constraint("Equal", 9, 11),
    Sketcher.Constraint("Parallel", 0, 6),
    Sketcher.Constraint("Horizontal", 3, 3, 7, 3),
    Sketcher.Constraint("Horizontal", 4, 2, 5, 2),
    Sketcher.Constraint("Radius", 1, 1.0),
    Sketcher.Constraint("DistanceX", -1, 1, 5, 3, 40.0),
    Sketcher.Constraint("DistanceX", -1, 1, 1, 3, 28.8),
    Sketcher.Constraint("DistanceY", 8, 1, 8, 2, 7.01149),
    Sketcher.Constraint("DistanceY", -1, 1, 4, 2, 4.178299),
    Sketcher.Constraint("DistanceX", -1, 1, 9, 2, 51.922602),
    Sketcher.Constraint("DistanceY", 5, 3, 1, 3, 18.620101),
    Sketcher.Constraint("Distance", 0, 16.219271),
])
pocket7 = doc.addObject("PartDesign::Pocket", "Pocket006")
body.addObject(pocket7)
pocket7.Profile = sketch8
pocket7.Length = 1000

doc.recompute()
